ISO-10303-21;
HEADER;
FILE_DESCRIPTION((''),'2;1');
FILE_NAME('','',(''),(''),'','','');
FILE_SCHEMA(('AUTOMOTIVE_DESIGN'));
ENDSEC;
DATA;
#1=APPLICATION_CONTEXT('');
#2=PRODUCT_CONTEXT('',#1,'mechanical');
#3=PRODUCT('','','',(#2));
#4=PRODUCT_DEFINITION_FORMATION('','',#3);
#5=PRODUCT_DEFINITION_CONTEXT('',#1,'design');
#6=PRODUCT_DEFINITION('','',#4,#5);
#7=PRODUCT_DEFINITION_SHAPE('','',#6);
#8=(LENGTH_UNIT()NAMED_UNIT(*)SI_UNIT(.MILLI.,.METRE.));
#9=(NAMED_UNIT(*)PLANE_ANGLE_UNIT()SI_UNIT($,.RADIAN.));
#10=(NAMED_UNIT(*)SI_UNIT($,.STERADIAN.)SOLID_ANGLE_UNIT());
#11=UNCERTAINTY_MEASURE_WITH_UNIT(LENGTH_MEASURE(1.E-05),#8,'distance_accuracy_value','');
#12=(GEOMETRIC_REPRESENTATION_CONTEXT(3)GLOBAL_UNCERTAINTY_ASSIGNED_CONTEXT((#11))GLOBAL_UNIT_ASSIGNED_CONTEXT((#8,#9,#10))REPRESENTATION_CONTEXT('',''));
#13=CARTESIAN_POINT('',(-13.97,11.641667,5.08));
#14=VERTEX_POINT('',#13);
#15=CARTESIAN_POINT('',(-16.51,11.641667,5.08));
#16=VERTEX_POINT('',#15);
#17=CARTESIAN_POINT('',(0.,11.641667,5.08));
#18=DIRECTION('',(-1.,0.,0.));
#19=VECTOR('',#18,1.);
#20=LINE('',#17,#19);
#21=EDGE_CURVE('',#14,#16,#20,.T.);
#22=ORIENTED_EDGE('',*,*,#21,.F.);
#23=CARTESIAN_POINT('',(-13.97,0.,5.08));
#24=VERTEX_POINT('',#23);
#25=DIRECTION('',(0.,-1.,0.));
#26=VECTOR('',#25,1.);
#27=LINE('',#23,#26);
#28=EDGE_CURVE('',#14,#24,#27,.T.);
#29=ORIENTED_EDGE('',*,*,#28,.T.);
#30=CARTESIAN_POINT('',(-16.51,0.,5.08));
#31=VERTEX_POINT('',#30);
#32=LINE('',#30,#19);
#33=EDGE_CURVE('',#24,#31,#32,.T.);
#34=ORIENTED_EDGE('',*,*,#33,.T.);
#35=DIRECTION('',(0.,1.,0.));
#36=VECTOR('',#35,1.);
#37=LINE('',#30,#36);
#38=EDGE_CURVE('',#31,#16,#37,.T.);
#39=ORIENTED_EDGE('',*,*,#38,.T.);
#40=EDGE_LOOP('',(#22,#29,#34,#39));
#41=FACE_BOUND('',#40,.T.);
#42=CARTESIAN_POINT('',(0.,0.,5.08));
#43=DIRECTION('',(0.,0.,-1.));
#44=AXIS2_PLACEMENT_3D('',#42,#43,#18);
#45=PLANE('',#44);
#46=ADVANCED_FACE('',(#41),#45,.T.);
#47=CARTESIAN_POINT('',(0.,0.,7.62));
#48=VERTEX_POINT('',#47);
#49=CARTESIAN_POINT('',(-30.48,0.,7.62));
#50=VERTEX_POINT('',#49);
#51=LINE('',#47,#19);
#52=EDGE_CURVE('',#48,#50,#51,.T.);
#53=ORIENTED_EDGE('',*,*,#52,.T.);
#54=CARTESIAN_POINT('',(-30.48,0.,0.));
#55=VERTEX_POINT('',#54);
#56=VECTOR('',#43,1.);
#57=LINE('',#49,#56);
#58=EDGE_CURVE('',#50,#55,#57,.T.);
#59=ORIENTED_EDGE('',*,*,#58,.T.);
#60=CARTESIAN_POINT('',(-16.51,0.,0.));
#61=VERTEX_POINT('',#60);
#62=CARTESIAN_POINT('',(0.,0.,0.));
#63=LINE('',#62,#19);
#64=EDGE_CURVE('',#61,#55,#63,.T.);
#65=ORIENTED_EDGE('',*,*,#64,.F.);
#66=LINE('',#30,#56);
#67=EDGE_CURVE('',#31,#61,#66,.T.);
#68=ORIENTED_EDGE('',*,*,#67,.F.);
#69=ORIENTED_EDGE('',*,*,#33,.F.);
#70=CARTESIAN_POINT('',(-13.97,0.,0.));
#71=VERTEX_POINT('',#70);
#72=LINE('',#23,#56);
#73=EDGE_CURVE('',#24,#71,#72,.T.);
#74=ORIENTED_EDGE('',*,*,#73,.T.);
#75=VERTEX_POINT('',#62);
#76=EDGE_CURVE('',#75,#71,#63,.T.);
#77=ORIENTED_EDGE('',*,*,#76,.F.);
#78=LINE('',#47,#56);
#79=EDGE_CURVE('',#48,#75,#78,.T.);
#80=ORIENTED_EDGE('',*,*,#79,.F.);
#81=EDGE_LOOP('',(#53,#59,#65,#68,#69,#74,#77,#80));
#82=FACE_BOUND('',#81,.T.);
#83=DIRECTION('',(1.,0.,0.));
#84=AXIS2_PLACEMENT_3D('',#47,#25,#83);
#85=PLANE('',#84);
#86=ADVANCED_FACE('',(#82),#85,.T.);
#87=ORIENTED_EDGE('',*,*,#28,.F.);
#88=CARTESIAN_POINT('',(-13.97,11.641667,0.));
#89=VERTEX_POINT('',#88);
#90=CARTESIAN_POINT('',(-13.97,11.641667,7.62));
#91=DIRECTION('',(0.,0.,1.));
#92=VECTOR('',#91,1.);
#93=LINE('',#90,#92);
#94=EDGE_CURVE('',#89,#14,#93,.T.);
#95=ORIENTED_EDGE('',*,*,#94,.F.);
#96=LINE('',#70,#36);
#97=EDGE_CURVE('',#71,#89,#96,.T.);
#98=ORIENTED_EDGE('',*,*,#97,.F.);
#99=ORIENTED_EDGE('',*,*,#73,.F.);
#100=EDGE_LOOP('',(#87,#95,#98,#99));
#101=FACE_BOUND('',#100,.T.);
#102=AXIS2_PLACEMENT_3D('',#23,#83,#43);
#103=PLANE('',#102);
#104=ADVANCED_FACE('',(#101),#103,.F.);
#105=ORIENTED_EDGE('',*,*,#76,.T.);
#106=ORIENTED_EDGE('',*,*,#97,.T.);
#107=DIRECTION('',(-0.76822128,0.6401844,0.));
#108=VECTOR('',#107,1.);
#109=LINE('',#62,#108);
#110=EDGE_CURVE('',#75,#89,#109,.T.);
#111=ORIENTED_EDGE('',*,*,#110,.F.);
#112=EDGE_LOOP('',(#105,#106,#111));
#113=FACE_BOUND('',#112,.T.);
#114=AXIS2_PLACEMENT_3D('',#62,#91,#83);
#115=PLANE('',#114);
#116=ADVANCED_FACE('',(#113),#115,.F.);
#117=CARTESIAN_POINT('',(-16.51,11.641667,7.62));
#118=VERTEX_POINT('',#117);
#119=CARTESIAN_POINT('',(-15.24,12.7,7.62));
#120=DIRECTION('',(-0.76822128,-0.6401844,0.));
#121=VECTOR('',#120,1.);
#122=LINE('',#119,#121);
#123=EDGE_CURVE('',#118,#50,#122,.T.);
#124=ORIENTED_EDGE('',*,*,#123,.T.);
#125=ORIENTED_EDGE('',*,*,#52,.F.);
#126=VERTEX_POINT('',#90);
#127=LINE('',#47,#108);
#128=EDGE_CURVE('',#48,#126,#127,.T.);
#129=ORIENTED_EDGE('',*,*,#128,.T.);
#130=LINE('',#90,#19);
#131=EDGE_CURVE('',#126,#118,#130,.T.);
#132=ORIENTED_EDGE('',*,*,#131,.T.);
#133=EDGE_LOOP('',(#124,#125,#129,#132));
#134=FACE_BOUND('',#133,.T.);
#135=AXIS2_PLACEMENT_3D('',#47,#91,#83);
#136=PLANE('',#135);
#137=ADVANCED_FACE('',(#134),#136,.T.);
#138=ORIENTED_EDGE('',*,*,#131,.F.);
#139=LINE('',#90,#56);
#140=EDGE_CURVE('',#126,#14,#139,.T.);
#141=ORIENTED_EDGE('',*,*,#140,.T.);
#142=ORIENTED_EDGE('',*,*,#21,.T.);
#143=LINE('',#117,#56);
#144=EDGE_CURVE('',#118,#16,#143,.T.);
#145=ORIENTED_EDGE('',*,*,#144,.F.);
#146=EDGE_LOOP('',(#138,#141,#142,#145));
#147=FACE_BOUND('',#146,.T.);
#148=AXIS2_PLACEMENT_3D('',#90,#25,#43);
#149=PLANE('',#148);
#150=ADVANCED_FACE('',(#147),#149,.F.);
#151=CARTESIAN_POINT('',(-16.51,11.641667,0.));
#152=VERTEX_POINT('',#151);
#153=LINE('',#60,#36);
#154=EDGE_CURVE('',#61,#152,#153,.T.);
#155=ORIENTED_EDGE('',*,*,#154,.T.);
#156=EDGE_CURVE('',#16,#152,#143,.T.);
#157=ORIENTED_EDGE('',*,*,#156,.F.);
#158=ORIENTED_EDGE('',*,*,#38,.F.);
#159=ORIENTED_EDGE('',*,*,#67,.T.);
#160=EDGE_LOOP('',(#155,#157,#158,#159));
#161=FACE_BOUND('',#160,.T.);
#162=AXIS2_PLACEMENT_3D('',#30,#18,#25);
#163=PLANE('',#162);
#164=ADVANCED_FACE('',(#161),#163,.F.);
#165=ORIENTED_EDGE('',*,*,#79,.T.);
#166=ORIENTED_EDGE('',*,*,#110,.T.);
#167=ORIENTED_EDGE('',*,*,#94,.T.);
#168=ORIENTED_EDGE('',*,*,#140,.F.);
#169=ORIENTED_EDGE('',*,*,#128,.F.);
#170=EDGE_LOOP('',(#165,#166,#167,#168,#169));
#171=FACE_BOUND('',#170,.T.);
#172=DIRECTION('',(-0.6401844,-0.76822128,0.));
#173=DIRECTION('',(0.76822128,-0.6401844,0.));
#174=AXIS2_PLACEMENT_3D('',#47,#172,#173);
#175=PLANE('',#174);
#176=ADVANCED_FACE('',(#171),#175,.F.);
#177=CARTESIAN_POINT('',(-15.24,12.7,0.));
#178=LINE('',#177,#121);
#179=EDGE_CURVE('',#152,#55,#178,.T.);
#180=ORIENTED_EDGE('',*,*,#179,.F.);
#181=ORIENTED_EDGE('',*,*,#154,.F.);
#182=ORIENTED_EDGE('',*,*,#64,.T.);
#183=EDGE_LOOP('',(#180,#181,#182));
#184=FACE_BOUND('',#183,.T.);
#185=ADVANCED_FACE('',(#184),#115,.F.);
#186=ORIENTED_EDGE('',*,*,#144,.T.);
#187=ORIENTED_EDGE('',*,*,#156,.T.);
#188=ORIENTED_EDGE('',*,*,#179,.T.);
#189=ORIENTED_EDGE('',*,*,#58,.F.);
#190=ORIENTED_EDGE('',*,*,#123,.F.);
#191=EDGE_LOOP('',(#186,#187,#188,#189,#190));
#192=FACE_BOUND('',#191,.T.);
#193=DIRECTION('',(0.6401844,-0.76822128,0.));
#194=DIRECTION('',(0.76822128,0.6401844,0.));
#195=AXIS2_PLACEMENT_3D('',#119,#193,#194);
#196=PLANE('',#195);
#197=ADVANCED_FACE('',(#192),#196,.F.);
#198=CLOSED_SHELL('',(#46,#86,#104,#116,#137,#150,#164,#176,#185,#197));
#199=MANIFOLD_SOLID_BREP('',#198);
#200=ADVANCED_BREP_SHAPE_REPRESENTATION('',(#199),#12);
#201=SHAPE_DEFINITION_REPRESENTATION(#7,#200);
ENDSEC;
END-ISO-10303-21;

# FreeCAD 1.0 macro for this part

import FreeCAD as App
import Part
import Sketcher
Q = App.Units.Quantity

doc = App.newDocument("Part")
body = doc.addObject("PartDesign::Body", "Body")

sketch1 = body.newObject("Sketcher::SketchObject", "Sketch")
sketch1.AttachmentSupport = (doc.getObject("XY_Plane"), [""])
sketch1.MapMode = "FlatFace"
sketch1.addGeometry([
    Part.LineSegment(App.Vector(-30, 0, 0), App.Vector(0, 0, 0)),
    Part.LineSegment(App.Vector(0, 0, 0), App.Vector(-15, 13, 0)),
    Part.LineSegment(App.Vector(-15, 13, 0), App.Vector(-30, 0, 0)),
], False)
sketch1.addConstraint([
    Sketcher.Constraint("Coincident", 0, 2, 1, 1),
    Sketcher.Constraint("Coincident", 1, 2, 2, 1),
    Sketcher.Constraint("Coincident", 2, 2, 0, 1),
    Sketcher.Constraint("Horizontal", 0),
    Sketcher.Constraint("Coincident", 0, 2, -1, 1),
    Sketcher.Constraint("Equal", 1, 2),
    Sketcher.Constraint("DistanceX", 0, 1, 0, 2, Q("1.2 in")),
    Sketcher.Constraint("DistanceY", -1, 1, 1, 2, Q("0.5 in")),
])
pad1 = body.newObject("PartDesign::Pad", "Pad")
pad1.Profile = sketch1
pad1.Length = Q("0.3 in")

sketch2 = body.newObject("Sketcher::SketchObject", "Sketch001")
sketch2.AttachmentSupport = (doc.getObject("XY_Plane"), [""])
sketch2.MapMode = "FlatFace"
sketch2.addGeometry([
    Part.LineSegment(App.Vector(-14, 12.7, 0), App.Vector(-14, 0, 0)),
    Part.LineSegment(App.Vector(-14, 0, 0), App.Vector(-16.5, 0, 0)),
    Part.LineSegment(App.Vector(-16.5, 0, 0), App.Vector(-16.5, 12.7, 0)),
    Part.LineSegment(App.Vector(-16.5, 12.7, 0), App.Vector(-14, 12.7, 0)),
], False)
sketch2.addConstraint([
    Sketcher.Constraint("Coincident", 0, 2, 1, 1),
    Sketcher.Constraint("Coincident", 1, 2, 2, 1),
    Sketcher.Constraint("Coincident", 2, 2, 3, 1),
    Sketcher.Constraint("Coincident", 3, 2, 0, 1),
    Sketcher.Constraint("Vertical", 0),
    Sketcher.Constraint("Horizontal", 1),
    Sketcher.Constraint("Vertical", 2),
    Sketcher.Constraint("Horizontal", 3),
    Sketcher.Constraint("PointOnObject", 0, 2, -1),
    Sketcher.Constraint("DistanceX", 1, 2, 1, 1, Q("0.1 in")),
    Sketcher.Constraint("DistanceY", 0, 2, 0, 1, Q("0.5 in")),
    Sketcher.Constraint("DistanceX", 0, 2, -1, 1, Q("0.55 in")),
])
pocket1 = body.newObject("PartDesign::Pocket", "Pocket")
pocket1.Profile = sketch2
pocket1.Length = Q("0.2 in")
pocket1.Reversed = True

sketch3 = body.newObject("Sketcher::SketchObject", "Sketch002")
sketch3.AttachmentSupport = (doc.getObject("XY_Plane"), [""])
sketch3.MapMode = "FlatFace"
sketch3.AttachmentOffset = App.Placement(App.Vector(0, 0, 0.2 * 25.4), App.Rotation())
sketch3.addGeometry([
    Part.LineSegment(App.Vector(-14, 12.7, 0), App.Vector(-14, 11.6, 0)),
    Part.LineSegment(App.Vector(-14, 11.6, 0), App.Vector(-16.5, 11.6, 0)),
    Part.LineSegment(App.Vector(-16.5, 11.6, 0), App.Vector(-16.5, 12.7, 0)),
    Part.LineSegment(App.Vector(-16.5, 12.7, 0), App.Vector(-14, 12.7, 0)),
], False)
sketch3.addConstraint([
    Sketcher.Constraint("Coincident", 0, 2, 1, 1),
    Sketcher.Constraint("Coincident", 1, 2, 2, 1),
    Sketcher.Constraint("Coincident", 2, 2, 3, 1),
    Sketcher.Constraint("Coincident", 3, 2, 0, 1),
    Sketcher.Constraint("Vertical", 0),
    Sketcher.Constraint("Horizontal", 1),
    Sketcher.Constraint("Vertical", 2),
    Sketcher.Constraint("Horizontal", 3),
    Sketcher.Constraint("DistanceX", 1, 2, 1, 1, Q("0.1 in")),
    Sketcher.Constraint("DistanceY", -1, 1, 2, 2, Q("0.5 in")),
    Sketcher.Constraint("DistanceX", 0, 2, -1, 1, Q("0.55 in")),
    Sketcher.Constraint("DistanceY", 0, 2, 0, 1, Q("1.058333 mm")),
])
pocket2 = body.newObject("PartDesign::Pocket", "Pocket001")
pocket2.Profile = sketch3
pocket2.Type = "ThroughAll"
pocket2.Midplane = True

doc.recompute()
